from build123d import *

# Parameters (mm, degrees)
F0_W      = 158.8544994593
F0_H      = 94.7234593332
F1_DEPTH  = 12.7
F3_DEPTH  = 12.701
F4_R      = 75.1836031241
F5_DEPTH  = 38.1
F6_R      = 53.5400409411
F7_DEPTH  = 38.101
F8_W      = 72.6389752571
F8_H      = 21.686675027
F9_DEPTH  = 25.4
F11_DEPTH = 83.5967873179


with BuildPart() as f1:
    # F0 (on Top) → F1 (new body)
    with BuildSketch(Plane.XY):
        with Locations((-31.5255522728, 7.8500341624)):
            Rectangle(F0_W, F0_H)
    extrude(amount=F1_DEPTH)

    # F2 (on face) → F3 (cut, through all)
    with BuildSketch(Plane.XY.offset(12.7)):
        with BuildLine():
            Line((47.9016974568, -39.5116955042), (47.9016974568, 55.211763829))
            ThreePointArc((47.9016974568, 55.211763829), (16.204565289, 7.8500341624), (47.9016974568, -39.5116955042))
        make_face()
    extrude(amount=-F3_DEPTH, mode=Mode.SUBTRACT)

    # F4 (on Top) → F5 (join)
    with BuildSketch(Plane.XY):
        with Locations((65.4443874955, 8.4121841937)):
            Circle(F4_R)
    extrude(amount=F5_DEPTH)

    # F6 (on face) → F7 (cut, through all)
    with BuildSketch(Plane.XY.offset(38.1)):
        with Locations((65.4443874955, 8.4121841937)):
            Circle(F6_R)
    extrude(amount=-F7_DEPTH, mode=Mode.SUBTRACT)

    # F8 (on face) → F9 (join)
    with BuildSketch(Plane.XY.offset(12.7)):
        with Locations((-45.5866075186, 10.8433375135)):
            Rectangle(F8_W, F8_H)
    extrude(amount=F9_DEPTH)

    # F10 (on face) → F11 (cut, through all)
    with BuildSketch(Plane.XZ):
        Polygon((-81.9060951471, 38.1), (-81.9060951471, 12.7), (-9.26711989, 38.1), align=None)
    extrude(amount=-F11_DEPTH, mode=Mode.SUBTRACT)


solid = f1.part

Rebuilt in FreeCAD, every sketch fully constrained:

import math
import FreeCAD as App
import Part
import Sketcher
Q = App.Units.Quantity

doc = App.newDocument("Part")
body = doc.addObject("PartDesign::Body", "Body")

# Sketch on XY plane
sketch1 = doc.addObject("Sketcher::SketchObject", "Sketch")
body.addObject(sketch1)
sketch1.AttachmentSupport = (doc.XY_Plane, [""])
sketch1.MapMode = "FlatFace"
sketch1.addGeometry(Part.LineSegment(App.Vector(-110.952802, 55.211764, 0), App.Vector(-110.952802, -39.511696, 0)), False)
sketch1.addGeometry(Part.LineSegment(App.Vector(-110.952802, -39.511696, 0), App.Vector(47.901697, -39.511696, 0)), False)
sketch1.addGeometry(Part.LineSegment(App.Vector(47.901697, -39.511696, 0), App.Vector(47.901697, 55.211764, 0)), False)
sketch1.addGeometry(Part.LineSegment(App.Vector(47.901697, 55.211764, 0), App.Vector(-110.952802, 55.211764, 0)), False)
sketch1.addConstraint(Sketcher.Constraint("Coincident", 0, 2, 1, 1))
sketch1.addConstraint(Sketcher.Constraint("Coincident", 1, 2, 2, 1))
sketch1.addConstraint(Sketcher.Constraint("Coincident", 2, 2, 3, 1))
sketch1.addConstraint(Sketcher.Constraint("Coincident", 3, 2, 0, 1))
sketch1.addConstraint(Sketcher.Constraint("Vertical", 0))
sketch1.addConstraint(Sketcher.Constraint("Horizontal", 1))
sketch1.addConstraint(Sketcher.Constraint("Vertical", 2))
sketch1.addConstraint(Sketcher.Constraint("Horizontal", 3))
sketch1.addConstraint(Sketcher.Constraint("DistanceX", 1, 1, 1, 2, Q("158.854499 mm")))
sketch1.addConstraint(Sketcher.Constraint("DistanceY", 0, 2, 0, 1, Q("94.723459 mm")))
sketch1.addConstraint(Sketcher.Constraint("DistanceX", 0, 2, -1, 1, Q("110.952802 mm")))
sketch1.addConstraint(Sketcher.Constraint("DistanceY", 0, 2, -1, 1, Q("39.511696 mm")))
pad1 = doc.addObject("PartDesign::Pad", "Pad")
body.addObject(pad1)
pad1.Profile = sketch1
pad1.Length = Q("0.5 in")

# Sketch on XY plane
sketch2 = doc.addObject("Sketcher::SketchObject", "Sketch001")
body.addObject(sketch2)
sketch2.AttachmentSupport = (doc.XY_Plane, [""])
sketch2.MapMode = "FlatFace"
sketch2.AttachmentOffset = App.Placement(App.Vector(0, 0, 0.5 * 25.4), App.Rotation())
sketch2.addGeometry(Part.LineSegment(App.Vector(47.901697, -39.511696, 0), App.Vector(47.901697, 55.211764, 0)), False)
sketch2.addGeometry(Part.ArcOfCircle(Part.Circle(App.Vector(67.436986, 7.850034, 0), App.Vector(0, 0, 1), 51.232421), math.radians(112.414674), math.radians(247.585326)), False)
sketch2.addConstraint(Sketcher.Constraint("Coincident", 0, 1, 1, 2))
sketch2.addConstraint(Sketcher.Constraint("Coincident", 1, 1, 0, 2))
sketch2.addConstraint(Sketcher.Constraint("Vertical", 0))
sketch2.addConstraint(Sketcher.Constraint("Radius", 1, Q("51.232421 mm")))
sketch2.addConstraint(Sketcher.Constraint("DistanceY", 0, 1, 0, 2, Q("94.723459 mm")))
sketch2.addConstraint(Sketcher.Constraint("DistanceX", -1, 1, 1, 3, Q("67.436986 mm")))
sketch2.addConstraint(Sketcher.Constraint("DistanceY", -1, 1, 1, 3, Q("7.850034 mm")))
pocket1 = doc.addObject("PartDesign::Pocket", "Pocket")
body.addObject(pocket1)
pocket1.Profile = sketch2
pocket1.Type = "ThroughAll"

# Sketch on XY plane
sketch3 = doc.addObject("Sketcher::SketchObject", "Sketch002")
body.addObject(sketch3)
sketch3.AttachmentSupport = (doc.XY_Plane, [""])
sketch3.MapMode = "FlatFace"
sketch3.addGeometry(Part.Circle(App.Vector(65.444387, 8.412184, 0), App.Vector(0, 0, 1), 75.183603), False)
sketch3.addConstraint(Sketcher.Constraint("Diameter", 0, Q("150.367206 mm")))
sketch3.addConstraint(Sketcher.Constraint("DistanceX", -1, 1, 0, 3, Q("65.444387 mm")))
sketch3.addConstraint(Sketcher.Constraint("DistanceY", -1, 1, 0, 3, Q("8.412184 mm")))
pad2 = doc.addObject("PartDesign::Pad", "Pad001")
body.addObject(pad2)
pad2.Profile = sketch3
pad2.Length = Q("1.5 in")

# Sketch on XY plane
sketch4 = doc.addObject("Sketcher::SketchObject", "Sketch003")
body.addObject(sketch4)
sketch4.AttachmentSupport = (doc.XY_Plane, [""])
sketch4.MapMode = "FlatFace"
sketch4.AttachmentOffset = App.Placement(App.Vector(0, 0, 1.5 * 25.4), App.Rotation())
sketch4.addGeometry(Part.Circle(App.Vector(65.444387, 8.412184, 0), App.Vector(0, 0, 1), 53.540041), False)
sketch4.addConstraint(Sketcher.Constraint("Diameter", 0, Q("107.080082 mm")))
sketch4.addConstraint(Sketcher.Constraint("DistanceX", -1, 1, 0, 3, Q("65.444387 mm")))
sketch4.addConstraint(Sketcher.Constraint("DistanceY", -1, 1, 0, 3, Q("8.412184 mm")))
pocket2 = doc.addObject("PartDesign::Pocket", "Pocket001")
body.addObject(pocket2)
pocket2.Profile = sketch4
pocket2.Type = "ThroughAll"

# Sketch on XY plane
sketch5 = doc.addObject("Sketcher::SketchObject", "Sketch004")
body.addObject(sketch5)
sketch5.AttachmentSupport = (doc.XY_Plane, [""])
sketch5.MapMode = "FlatFace"
sketch5.AttachmentOffset = App.Placement(App.Vector(0, 0, 0.5 * 25.4), App.Rotation())
sketch5.addGeometry(Part.LineSegment(App.Vector(-81.906095, 21.686675, 0), App.Vector(-81.906095, 0, 0)), False)
sketch5.addGeometry(Part.LineSegment(App.Vector(-81.906095, 0, 0), App.Vector(-9.26712, 0, 0)), False)
sketch5.addGeometry(Part.LineSegment(App.Vector(-9.26712, 0, 0), App.Vector(-9.26712, 21.686675, 0)), False)
sketch5.addGeometry(Part.LineSegment(App.Vector(-9.26712, 21.686675, 0), App.Vector(-81.906095, 21.686675, 0)), False)
sketch5.addConstraint(Sketcher.Constraint("Coincident", 0, 2, 1, 1))
sketch5.addConstraint(Sketcher.Constraint("Coincident", 1, 2, 2, 1))
sketch5.addConstraint(Sketcher.Constraint("Coincident", 2, 2, 3, 1))
sketch5.addConstraint(Sketcher.Constraint("Coincident", 3, 2, 0, 1))
sketch5.addConstraint(Sketcher.Constraint("Vertical", 0))
sketch5.addConstraint(Sketcher.Constraint("Horizontal", 1))
sketch5.addConstraint(Sketcher.Constraint("Vertical", 2))
sketch5.addConstraint(Sketcher.Constraint("Horizontal", 3))
sketch5.addConstraint(Sketcher.Constraint("PointOnObject", 0, 2, -1))
sketch5.addConstraint(Sketcher.Constraint("DistanceX", 1, 1, 1, 2, Q("72.638975 mm")))
sketch5.addConstraint(Sketcher.Constraint("DistanceY", 0, 2, 0, 1, Q("21.686675 mm")))
sketch5.addConstraint(Sketcher.Constraint("DistanceX", 1, 2, -1, 1, Q("9.26712 mm")))
pad3 = doc.addObject("PartDesign::Pad", "Pad002")
body.addObject(pad3)
pad3.Profile = sketch5
pad3.Length = Q("1 in")

# Sketch on XZ plane
sketch6 = doc.addObject("Sketcher::SketchObject", "Sketch005")
body.addObject(sketch6)
sketch6.AttachmentSupport = (doc.XZ_Plane, [""])
sketch6.MapMode = "FlatFace"
sketch6.addGeometry(Part.LineSegment(App.Vector(-81.906095, 38.1, 0), App.Vector(-81.906095, 12.7, 0)), False)
sketch6.addGeometry(Part.LineSegment(App.Vector(-81.906095, 12.7, 0), App.Vector(-9.26712, 38.1, 0)), False)
sketch6.addGeometry(Part.LineSegment(App.Vector(-9.26712, 38.1, 0), App.Vector(-81.906095, 38.1, 0)), False)
sketch6.addConstraint(Sketcher.Constraint("Coincident", 0, 2, 1, 1))
sketch6.addConstraint(Sketcher.Constraint("Coincident", 1, 2, 2, 1))
sketch6.addConstraint(Sketcher.Constraint("Coincident", 2, 2, 0, 1))
sketch6.addConstraint(Sketcher.Constraint("Vertical", 0))
sketch6.addConstraint(Sketcher.Constraint("Horizontal", 2))
sketch6.addConstraint(Sketcher.Constraint("DistanceY", 0, 2, 0, 1, Q("1 in")))
sketch6.addConstraint(Sketcher.Constraint("DistanceY", -1, 1, 0, 2, Q("0.5 in")))
sketch6.addConstraint(Sketcher.Constraint("DistanceX", 2, 2, 2, 1, Q("72.638975 mm")))
sketch6.addConstraint(Sketcher.Constraint("DistanceX", 1, 2, -1, 1, Q("9.26712 mm")))
pocket3 = doc.addObject("PartDesign::Pocket", "Pocket002")
body.addObject(pocket3)
pocket3.Profile = sketch6
pocket3.Type = "ThroughAll"

doc.recompute()
